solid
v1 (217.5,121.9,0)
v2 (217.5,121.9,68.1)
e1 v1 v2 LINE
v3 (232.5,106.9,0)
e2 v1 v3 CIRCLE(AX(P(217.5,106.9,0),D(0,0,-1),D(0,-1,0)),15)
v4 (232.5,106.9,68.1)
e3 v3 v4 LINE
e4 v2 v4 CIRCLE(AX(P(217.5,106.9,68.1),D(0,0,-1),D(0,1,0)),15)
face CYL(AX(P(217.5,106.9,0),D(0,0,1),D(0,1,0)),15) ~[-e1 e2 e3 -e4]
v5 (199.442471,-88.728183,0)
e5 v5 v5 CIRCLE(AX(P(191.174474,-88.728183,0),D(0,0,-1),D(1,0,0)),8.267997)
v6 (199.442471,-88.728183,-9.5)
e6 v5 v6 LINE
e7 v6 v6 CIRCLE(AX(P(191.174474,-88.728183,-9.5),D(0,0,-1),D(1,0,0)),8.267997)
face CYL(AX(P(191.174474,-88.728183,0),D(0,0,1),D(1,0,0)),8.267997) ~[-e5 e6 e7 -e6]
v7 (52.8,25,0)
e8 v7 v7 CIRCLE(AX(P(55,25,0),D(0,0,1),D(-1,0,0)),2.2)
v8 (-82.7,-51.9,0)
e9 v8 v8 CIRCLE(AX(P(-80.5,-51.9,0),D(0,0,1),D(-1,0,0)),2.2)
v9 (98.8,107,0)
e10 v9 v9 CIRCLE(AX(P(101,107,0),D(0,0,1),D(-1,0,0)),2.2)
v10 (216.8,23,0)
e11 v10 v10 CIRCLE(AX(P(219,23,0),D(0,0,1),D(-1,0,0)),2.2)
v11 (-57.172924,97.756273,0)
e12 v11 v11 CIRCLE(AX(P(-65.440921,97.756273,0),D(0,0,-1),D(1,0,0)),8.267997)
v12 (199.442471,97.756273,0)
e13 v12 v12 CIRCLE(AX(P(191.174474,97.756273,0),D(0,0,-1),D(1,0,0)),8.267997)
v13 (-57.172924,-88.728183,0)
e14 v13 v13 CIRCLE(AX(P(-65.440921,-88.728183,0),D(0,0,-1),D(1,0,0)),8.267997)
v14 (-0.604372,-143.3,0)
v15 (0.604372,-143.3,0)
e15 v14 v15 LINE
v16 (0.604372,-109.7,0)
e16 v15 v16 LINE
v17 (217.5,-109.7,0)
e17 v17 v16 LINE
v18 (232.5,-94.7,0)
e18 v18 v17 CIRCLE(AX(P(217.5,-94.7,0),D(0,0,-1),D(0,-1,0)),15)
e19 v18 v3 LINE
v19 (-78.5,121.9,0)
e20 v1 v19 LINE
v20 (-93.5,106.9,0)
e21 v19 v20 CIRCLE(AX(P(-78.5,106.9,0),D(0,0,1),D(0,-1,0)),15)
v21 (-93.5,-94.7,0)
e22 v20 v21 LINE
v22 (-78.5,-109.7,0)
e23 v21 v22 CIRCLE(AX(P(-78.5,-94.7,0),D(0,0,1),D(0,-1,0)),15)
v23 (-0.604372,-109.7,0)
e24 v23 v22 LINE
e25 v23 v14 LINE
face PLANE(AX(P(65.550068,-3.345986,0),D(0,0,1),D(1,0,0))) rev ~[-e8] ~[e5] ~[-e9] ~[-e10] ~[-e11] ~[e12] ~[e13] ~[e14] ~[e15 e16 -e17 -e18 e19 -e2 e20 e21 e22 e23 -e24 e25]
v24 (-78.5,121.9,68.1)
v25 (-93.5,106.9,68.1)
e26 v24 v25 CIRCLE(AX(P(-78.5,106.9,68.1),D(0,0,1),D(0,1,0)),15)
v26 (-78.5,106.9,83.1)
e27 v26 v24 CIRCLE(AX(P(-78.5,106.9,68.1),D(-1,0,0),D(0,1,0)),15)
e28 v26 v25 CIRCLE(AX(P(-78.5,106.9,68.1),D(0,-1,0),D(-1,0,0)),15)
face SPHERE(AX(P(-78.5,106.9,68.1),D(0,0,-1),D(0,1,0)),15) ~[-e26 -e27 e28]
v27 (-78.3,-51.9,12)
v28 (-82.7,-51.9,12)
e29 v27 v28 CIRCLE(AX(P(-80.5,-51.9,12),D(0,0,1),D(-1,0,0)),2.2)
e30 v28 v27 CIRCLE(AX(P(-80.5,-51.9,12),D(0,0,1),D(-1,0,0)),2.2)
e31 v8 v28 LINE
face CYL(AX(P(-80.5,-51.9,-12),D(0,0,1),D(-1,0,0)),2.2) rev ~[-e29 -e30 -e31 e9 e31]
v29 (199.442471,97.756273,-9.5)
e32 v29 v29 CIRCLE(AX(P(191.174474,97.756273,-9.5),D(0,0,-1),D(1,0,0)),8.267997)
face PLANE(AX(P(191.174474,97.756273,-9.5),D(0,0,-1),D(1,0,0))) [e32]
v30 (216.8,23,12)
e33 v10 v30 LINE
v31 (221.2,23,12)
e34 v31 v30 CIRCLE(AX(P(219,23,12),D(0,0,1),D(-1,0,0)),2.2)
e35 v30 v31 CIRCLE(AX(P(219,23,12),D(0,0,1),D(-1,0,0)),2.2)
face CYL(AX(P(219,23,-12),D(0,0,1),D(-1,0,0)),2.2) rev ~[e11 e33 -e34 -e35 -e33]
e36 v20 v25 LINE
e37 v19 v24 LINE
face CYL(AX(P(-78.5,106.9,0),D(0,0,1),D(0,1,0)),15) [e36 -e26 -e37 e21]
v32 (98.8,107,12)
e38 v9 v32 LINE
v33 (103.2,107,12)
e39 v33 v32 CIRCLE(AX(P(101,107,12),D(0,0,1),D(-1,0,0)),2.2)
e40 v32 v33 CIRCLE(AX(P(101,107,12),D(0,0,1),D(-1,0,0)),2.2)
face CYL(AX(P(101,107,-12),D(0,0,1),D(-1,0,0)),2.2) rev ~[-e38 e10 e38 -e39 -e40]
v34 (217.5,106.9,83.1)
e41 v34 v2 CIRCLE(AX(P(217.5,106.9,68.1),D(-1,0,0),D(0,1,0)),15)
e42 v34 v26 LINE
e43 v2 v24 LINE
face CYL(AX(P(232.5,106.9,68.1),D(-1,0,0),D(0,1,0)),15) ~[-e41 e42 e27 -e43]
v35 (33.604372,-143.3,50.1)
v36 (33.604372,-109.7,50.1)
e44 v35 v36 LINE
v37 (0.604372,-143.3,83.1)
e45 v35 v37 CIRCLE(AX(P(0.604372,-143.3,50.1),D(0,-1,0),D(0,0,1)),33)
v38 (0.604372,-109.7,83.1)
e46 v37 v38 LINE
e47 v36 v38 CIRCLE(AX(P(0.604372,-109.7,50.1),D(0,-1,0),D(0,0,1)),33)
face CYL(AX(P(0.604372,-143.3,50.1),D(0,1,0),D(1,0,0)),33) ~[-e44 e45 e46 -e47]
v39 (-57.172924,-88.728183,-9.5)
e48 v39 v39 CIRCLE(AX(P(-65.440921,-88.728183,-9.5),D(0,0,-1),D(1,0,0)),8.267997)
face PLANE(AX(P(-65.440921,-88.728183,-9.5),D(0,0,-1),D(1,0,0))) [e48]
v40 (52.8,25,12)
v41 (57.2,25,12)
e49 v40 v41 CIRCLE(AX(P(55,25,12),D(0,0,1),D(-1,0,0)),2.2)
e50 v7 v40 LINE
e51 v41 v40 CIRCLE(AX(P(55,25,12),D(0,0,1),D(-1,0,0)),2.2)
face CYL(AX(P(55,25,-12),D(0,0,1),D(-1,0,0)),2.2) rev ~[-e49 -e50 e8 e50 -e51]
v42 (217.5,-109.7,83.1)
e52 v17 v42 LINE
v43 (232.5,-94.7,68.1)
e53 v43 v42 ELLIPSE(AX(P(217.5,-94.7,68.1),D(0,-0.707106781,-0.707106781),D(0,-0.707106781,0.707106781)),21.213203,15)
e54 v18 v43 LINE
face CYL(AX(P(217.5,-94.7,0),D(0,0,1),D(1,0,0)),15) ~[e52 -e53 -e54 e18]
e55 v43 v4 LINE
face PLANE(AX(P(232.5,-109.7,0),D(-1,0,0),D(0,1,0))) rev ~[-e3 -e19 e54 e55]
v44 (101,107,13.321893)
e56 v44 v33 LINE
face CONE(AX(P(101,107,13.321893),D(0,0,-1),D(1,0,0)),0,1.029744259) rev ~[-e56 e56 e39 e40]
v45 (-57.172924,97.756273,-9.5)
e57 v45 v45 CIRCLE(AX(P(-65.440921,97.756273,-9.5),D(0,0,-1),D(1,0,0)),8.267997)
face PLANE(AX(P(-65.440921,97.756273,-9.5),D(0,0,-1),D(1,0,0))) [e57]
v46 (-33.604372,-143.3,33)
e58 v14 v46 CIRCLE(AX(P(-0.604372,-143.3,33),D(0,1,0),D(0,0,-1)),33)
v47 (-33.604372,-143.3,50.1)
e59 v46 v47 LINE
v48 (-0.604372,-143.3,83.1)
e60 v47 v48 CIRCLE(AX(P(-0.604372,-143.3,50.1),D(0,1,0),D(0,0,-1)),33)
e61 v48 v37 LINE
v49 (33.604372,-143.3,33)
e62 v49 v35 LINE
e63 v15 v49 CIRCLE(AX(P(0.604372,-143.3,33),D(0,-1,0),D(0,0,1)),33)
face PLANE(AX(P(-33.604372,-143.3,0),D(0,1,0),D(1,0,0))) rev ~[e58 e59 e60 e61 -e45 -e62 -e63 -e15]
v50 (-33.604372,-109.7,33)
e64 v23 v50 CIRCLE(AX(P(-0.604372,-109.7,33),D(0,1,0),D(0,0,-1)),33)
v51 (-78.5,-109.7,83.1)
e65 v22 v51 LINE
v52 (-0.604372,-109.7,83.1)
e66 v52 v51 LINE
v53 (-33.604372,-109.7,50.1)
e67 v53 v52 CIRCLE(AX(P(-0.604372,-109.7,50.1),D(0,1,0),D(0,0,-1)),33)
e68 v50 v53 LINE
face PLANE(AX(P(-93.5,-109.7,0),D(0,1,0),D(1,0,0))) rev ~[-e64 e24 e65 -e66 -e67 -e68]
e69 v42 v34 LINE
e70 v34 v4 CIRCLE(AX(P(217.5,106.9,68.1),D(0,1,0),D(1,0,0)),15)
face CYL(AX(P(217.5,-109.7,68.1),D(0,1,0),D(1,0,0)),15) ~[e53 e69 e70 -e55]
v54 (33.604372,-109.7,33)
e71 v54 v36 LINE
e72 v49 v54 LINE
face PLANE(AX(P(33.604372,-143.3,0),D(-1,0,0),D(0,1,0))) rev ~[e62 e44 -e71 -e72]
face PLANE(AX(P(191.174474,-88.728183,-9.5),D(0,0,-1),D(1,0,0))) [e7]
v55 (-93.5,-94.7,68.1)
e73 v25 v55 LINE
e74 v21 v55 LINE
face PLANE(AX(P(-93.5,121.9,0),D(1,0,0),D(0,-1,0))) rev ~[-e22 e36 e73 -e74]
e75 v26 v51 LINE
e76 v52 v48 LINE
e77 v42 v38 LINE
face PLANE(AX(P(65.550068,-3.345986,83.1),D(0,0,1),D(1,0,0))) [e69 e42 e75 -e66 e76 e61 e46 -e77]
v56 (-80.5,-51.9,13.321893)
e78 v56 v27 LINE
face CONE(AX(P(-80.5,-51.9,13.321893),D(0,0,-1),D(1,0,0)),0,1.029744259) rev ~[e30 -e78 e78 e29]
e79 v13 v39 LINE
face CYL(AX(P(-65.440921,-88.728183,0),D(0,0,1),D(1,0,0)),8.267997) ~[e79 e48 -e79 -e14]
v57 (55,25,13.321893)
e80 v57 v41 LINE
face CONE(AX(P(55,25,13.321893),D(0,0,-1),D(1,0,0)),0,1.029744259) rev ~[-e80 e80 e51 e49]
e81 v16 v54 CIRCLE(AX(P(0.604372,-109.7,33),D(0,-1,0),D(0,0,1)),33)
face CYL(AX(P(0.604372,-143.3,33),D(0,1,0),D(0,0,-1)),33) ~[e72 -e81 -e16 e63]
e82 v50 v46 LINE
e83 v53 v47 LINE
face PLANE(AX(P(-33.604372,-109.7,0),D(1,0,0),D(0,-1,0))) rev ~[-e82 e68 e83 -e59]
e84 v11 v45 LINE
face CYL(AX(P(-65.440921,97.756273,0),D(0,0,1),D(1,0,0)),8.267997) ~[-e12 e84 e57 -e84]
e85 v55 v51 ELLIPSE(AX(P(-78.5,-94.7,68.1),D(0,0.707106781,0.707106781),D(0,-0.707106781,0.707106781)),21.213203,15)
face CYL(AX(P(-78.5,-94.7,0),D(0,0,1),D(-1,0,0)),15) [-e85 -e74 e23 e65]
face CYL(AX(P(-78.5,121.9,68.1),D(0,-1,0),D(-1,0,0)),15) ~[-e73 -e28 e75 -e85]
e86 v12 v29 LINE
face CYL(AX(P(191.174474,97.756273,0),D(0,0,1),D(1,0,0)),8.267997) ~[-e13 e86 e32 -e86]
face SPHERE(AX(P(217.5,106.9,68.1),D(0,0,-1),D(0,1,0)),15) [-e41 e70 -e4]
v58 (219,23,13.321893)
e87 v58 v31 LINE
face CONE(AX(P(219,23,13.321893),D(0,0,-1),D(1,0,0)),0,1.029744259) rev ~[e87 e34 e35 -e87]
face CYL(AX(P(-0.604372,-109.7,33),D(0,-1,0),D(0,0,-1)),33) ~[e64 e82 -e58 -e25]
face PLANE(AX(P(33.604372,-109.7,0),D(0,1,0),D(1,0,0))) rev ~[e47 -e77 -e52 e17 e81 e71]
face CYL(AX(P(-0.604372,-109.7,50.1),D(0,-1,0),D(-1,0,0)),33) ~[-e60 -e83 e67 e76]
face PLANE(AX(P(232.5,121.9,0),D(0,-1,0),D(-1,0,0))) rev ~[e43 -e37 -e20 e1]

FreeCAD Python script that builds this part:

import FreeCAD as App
import Part
import Sketcher


def edges_at(feature, points):
    """Names of the edges that pass closest to the given points."""
    edges = feature.Shape.Edges
    near = lambda p: min(range(len(edges)), key=lambda i: edges[i].distToShape(Part.Vertex(*p))[0])
    return sorted({f"Edge{near(p) + 1}" for p in points})


def add_polygon(sketch, points):
    """Adds a closed chain of lines whose ends are joined by coincident constraints."""
    first, n = sketch.GeometryCount, len(points)
    for a, b in zip(points, points[1:] + points[:1]):
        sketch.addGeometry(Part.LineSegment(App.Vector(*a, 0), App.Vector(*b, 0)), False)
    for i in range(n):
        sketch.addConstraint(Sketcher.Constraint("Coincident", first + i, 2, first + (i + 1) % n, 1))

doc = App.newDocument("Part")
body = doc.addObject("PartDesign::Body", "Body")

# Sketch on XY plane
sketch1 = body.newObject("Sketcher::SketchObject", "Sketch")
sketch1.AttachmentSupport = (doc.getObject("XY_Plane"), [""])
sketch1.MapMode = "FlatFace"
add_polygon(sketch1, [(232.5, 121.9), (-93.5, 121.9), (-93.5, -109.7), (-33.604372, -109.7), (-33.604372, -143.3), (33.604372, -143.3), (33.604372, -109.7), (232.5, -109.7)])  # lines 0-7
sketch1.addConstraint(Sketcher.Constraint("Horizontal", 0))
sketch1.addConstraint(Sketcher.Constraint("Vertical", 1))
sketch1.addConstraint(Sketcher.Constraint("Horizontal", 2))
sketch1.addConstraint(Sketcher.Constraint("Vertical", 3))
sketch1.addConstraint(Sketcher.Constraint("Horizontal", 4))
sketch1.addConstraint(Sketcher.Constraint("Vertical", 5))
sketch1.addConstraint(Sketcher.Constraint("Horizontal", 6))
sketch1.addConstraint(Sketcher.Constraint("Vertical", 7))
sketch1.addConstraint(Sketcher.Constraint("Symmetric", 2, 2, 5, 2, -2))
sketch1.addConstraint(Sketcher.Constraint("DistanceX", 0, 2, 0, 1, 326.0))
sketch1.addConstraint(Sketcher.Constraint("DistanceY", 1, 2, 1, 1, 231.6))
sketch1.addConstraint(Sketcher.Constraint("DistanceY", 3, 2, 3, 1, 33.6))
sketch1.addConstraint(Sketcher.Constraint("DistanceX", 0, 2, -1, 1, 93.5))
sketch1.addConstraint(Sketcher.Constraint("DistanceY", -1, 1, 0, 2, 121.9))
sketch1.addConstraint(Sketcher.Constraint("DistanceX", 2, 1, 2, 2, 59.895628))
pad1 = body.newObject("PartDesign::Pad", "Pad")
pad1.Profile = sketch1
pad1.Length = 83.1

# Sketch on XY plane
sketch2 = body.newObject("Sketcher::SketchObject", "Sketch001")
sketch2.AttachmentSupport = (doc.getObject("XY_Plane"), [""])
sketch2.MapMode = "FlatFace"
sketch2.addGeometry(Part.Circle(App.Vector(-65.440921, -88.728183, 0), App.Vector(0, 0, 1), 8.267997), False)
sketch2.addGeometry(Part.Circle(App.Vector(-65.440921, 97.756273, 0), App.Vector(0, 0, 1), 8.267997), False)
sketch2.addGeometry(Part.Circle(App.Vector(191.174474, -88.728183, 0), App.Vector(0, 0, 1), 8.267997), False)
sketch2.addGeometry(Part.Circle(App.Vector(191.174474, 97.756273, 0), App.Vector(0, 0, 1), 8.267997), False)
sketch2.addConstraint(Sketcher.Constraint("Equal", 0, 1))
sketch2.addConstraint(Sketcher.Constraint("Equal", 1, 2))
sketch2.addConstraint(Sketcher.Constraint("Equal", 2, 3))
sketch2.addConstraint(Sketcher.Constraint("Horizontal", 0, 3, 2, 3))
sketch2.addConstraint(Sketcher.Constraint("Horizontal", 1, 3, 3, 3))
sketch2.addConstraint(Sketcher.Constraint("Vertical", 0, 3, 1, 3))
sketch2.addConstraint(Sketcher.Constraint("Vertical", 2, 3, 3, 3))
sketch2.addConstraint(Sketcher.Constraint("Diameter", 0, 16.535994))
sketch2.addConstraint(Sketcher.Constraint("DistanceX", 0, 3, -1, 1, 65.440921))
sketch2.addConstraint(Sketcher.Constraint("DistanceY", 0, 3, -1, 1, 88.728183))
sketch2.addConstraint(Sketcher.Constraint("DistanceY", -1, 1, 1, 3, 97.756273))
sketch2.addConstraint(Sketcher.Constraint("DistanceX", -1, 1, 2, 3, 191.174474))
pad2 = body.newObject("PartDesign::Pad", "Pad001")
pad2.Profile = sketch2
pad2.Length = 9.5
pad2.Reversed = True
doc.recompute()

fillet = body.newObject("PartDesign::Fillet", "Fillet")
fillet.Base = (pad2, edges_at(pad2, [
    (-93.5, -109.7, 41.55),
    (232.5, -109.7, 41.55),
    (-93.5, 121.9, 41.55),
    (232.5, 121.9, 41.55),
    (69.5, 121.9, 83.1),
    (-93.5, 6.1, 83.1),
    (232.5, 6.1, 83.1),
]))
fillet.Radius = 15
doc.recompute()

fillet2 = body.newObject("PartDesign::Fillet", "Fillet001")
fillet2.Base = (fillet, edges_at(fillet, [
    (-33.604, -126.5, 83.1),
    (33.604, -126.5, 83.1),
    (-33.604, -126.5, 0),
    (33.604, -126.5, 0),
]))
fillet2.Radius = 33

# Sketch on XY plane
sketch3 = body.newObject("Sketcher::SketchObject", "Sketch002")
sketch3.AttachmentSupport = (doc.getObject("XY_Plane"), [""])
sketch3.MapMode = "FlatFace"
sketch3.addGeometry(Part.Circle(App.Vector(-80.5, -51.9, 0), App.Vector(0, 0, 1), 2.2), False)
sketch3.addGeometry(Part.Circle(App.Vector(55, 25, 0), App.Vector(0, 0, 1), 2.2), False)
sketch3.addGeometry(Part.Circle(App.Vector(101, 107, 0), App.Vector(0, 0, 1), 2.2), False)
sketch3.addGeometry(Part.Circle(App.Vector(219, 23, 0), App.Vector(0, 0, 1), 2.2), False)
sketch3.addConstraint(Sketcher.Constraint("Equal", 0, 1))
sketch3.addConstraint(Sketcher.Constraint("Equal", 1, 2))
sketch3.addConstraint(Sketcher.Constraint("Equal", 2, 3))
sketch3.addConstraint(Sketcher.Constraint("Diameter", 0, 4.4))
sketch3.addConstraint(Sketcher.Constraint("DistanceX", -1, 1, 1, 3, 55.0))
sketch3.addConstraint(Sketcher.Constraint("DistanceY", -1, 1, 1, 3, 25.0))
sketch3.addConstraint(Sketcher.Constraint("DistanceX", -1, 1, 2, 3, 101.0))
sketch3.addConstraint(Sketcher.Constraint("DistanceY", -1, 1, 2, 3, 107.0))
sketch3.addConstraint(Sketcher.Constraint("DistanceX", -1, 1, 3, 3, 219.0))
sketch3.addConstraint(Sketcher.Constraint("DistanceY", -1, 1, 3, 3, 23.0))
sketch3.addConstraint(Sketcher.Constraint("DistanceX", 0, 3, -1, 1, 80.5))
sketch3.addConstraint(Sketcher.Constraint("DistanceY", 0, 3, -1, 1, 51.9))
doc.recompute()
hole = body.newObject("PartDesign::Hole", "Hole")
hole.Profile = sketch3
hole.ThreadType = "None"
hole.Diameter = 4.4
hole.DepthType = "Dimension"
hole.Depth = 12
hole.DrillPoint = "Angled"
hole.DrillPointAngle = 118
hole.Reversed = True

doc.recompute()
